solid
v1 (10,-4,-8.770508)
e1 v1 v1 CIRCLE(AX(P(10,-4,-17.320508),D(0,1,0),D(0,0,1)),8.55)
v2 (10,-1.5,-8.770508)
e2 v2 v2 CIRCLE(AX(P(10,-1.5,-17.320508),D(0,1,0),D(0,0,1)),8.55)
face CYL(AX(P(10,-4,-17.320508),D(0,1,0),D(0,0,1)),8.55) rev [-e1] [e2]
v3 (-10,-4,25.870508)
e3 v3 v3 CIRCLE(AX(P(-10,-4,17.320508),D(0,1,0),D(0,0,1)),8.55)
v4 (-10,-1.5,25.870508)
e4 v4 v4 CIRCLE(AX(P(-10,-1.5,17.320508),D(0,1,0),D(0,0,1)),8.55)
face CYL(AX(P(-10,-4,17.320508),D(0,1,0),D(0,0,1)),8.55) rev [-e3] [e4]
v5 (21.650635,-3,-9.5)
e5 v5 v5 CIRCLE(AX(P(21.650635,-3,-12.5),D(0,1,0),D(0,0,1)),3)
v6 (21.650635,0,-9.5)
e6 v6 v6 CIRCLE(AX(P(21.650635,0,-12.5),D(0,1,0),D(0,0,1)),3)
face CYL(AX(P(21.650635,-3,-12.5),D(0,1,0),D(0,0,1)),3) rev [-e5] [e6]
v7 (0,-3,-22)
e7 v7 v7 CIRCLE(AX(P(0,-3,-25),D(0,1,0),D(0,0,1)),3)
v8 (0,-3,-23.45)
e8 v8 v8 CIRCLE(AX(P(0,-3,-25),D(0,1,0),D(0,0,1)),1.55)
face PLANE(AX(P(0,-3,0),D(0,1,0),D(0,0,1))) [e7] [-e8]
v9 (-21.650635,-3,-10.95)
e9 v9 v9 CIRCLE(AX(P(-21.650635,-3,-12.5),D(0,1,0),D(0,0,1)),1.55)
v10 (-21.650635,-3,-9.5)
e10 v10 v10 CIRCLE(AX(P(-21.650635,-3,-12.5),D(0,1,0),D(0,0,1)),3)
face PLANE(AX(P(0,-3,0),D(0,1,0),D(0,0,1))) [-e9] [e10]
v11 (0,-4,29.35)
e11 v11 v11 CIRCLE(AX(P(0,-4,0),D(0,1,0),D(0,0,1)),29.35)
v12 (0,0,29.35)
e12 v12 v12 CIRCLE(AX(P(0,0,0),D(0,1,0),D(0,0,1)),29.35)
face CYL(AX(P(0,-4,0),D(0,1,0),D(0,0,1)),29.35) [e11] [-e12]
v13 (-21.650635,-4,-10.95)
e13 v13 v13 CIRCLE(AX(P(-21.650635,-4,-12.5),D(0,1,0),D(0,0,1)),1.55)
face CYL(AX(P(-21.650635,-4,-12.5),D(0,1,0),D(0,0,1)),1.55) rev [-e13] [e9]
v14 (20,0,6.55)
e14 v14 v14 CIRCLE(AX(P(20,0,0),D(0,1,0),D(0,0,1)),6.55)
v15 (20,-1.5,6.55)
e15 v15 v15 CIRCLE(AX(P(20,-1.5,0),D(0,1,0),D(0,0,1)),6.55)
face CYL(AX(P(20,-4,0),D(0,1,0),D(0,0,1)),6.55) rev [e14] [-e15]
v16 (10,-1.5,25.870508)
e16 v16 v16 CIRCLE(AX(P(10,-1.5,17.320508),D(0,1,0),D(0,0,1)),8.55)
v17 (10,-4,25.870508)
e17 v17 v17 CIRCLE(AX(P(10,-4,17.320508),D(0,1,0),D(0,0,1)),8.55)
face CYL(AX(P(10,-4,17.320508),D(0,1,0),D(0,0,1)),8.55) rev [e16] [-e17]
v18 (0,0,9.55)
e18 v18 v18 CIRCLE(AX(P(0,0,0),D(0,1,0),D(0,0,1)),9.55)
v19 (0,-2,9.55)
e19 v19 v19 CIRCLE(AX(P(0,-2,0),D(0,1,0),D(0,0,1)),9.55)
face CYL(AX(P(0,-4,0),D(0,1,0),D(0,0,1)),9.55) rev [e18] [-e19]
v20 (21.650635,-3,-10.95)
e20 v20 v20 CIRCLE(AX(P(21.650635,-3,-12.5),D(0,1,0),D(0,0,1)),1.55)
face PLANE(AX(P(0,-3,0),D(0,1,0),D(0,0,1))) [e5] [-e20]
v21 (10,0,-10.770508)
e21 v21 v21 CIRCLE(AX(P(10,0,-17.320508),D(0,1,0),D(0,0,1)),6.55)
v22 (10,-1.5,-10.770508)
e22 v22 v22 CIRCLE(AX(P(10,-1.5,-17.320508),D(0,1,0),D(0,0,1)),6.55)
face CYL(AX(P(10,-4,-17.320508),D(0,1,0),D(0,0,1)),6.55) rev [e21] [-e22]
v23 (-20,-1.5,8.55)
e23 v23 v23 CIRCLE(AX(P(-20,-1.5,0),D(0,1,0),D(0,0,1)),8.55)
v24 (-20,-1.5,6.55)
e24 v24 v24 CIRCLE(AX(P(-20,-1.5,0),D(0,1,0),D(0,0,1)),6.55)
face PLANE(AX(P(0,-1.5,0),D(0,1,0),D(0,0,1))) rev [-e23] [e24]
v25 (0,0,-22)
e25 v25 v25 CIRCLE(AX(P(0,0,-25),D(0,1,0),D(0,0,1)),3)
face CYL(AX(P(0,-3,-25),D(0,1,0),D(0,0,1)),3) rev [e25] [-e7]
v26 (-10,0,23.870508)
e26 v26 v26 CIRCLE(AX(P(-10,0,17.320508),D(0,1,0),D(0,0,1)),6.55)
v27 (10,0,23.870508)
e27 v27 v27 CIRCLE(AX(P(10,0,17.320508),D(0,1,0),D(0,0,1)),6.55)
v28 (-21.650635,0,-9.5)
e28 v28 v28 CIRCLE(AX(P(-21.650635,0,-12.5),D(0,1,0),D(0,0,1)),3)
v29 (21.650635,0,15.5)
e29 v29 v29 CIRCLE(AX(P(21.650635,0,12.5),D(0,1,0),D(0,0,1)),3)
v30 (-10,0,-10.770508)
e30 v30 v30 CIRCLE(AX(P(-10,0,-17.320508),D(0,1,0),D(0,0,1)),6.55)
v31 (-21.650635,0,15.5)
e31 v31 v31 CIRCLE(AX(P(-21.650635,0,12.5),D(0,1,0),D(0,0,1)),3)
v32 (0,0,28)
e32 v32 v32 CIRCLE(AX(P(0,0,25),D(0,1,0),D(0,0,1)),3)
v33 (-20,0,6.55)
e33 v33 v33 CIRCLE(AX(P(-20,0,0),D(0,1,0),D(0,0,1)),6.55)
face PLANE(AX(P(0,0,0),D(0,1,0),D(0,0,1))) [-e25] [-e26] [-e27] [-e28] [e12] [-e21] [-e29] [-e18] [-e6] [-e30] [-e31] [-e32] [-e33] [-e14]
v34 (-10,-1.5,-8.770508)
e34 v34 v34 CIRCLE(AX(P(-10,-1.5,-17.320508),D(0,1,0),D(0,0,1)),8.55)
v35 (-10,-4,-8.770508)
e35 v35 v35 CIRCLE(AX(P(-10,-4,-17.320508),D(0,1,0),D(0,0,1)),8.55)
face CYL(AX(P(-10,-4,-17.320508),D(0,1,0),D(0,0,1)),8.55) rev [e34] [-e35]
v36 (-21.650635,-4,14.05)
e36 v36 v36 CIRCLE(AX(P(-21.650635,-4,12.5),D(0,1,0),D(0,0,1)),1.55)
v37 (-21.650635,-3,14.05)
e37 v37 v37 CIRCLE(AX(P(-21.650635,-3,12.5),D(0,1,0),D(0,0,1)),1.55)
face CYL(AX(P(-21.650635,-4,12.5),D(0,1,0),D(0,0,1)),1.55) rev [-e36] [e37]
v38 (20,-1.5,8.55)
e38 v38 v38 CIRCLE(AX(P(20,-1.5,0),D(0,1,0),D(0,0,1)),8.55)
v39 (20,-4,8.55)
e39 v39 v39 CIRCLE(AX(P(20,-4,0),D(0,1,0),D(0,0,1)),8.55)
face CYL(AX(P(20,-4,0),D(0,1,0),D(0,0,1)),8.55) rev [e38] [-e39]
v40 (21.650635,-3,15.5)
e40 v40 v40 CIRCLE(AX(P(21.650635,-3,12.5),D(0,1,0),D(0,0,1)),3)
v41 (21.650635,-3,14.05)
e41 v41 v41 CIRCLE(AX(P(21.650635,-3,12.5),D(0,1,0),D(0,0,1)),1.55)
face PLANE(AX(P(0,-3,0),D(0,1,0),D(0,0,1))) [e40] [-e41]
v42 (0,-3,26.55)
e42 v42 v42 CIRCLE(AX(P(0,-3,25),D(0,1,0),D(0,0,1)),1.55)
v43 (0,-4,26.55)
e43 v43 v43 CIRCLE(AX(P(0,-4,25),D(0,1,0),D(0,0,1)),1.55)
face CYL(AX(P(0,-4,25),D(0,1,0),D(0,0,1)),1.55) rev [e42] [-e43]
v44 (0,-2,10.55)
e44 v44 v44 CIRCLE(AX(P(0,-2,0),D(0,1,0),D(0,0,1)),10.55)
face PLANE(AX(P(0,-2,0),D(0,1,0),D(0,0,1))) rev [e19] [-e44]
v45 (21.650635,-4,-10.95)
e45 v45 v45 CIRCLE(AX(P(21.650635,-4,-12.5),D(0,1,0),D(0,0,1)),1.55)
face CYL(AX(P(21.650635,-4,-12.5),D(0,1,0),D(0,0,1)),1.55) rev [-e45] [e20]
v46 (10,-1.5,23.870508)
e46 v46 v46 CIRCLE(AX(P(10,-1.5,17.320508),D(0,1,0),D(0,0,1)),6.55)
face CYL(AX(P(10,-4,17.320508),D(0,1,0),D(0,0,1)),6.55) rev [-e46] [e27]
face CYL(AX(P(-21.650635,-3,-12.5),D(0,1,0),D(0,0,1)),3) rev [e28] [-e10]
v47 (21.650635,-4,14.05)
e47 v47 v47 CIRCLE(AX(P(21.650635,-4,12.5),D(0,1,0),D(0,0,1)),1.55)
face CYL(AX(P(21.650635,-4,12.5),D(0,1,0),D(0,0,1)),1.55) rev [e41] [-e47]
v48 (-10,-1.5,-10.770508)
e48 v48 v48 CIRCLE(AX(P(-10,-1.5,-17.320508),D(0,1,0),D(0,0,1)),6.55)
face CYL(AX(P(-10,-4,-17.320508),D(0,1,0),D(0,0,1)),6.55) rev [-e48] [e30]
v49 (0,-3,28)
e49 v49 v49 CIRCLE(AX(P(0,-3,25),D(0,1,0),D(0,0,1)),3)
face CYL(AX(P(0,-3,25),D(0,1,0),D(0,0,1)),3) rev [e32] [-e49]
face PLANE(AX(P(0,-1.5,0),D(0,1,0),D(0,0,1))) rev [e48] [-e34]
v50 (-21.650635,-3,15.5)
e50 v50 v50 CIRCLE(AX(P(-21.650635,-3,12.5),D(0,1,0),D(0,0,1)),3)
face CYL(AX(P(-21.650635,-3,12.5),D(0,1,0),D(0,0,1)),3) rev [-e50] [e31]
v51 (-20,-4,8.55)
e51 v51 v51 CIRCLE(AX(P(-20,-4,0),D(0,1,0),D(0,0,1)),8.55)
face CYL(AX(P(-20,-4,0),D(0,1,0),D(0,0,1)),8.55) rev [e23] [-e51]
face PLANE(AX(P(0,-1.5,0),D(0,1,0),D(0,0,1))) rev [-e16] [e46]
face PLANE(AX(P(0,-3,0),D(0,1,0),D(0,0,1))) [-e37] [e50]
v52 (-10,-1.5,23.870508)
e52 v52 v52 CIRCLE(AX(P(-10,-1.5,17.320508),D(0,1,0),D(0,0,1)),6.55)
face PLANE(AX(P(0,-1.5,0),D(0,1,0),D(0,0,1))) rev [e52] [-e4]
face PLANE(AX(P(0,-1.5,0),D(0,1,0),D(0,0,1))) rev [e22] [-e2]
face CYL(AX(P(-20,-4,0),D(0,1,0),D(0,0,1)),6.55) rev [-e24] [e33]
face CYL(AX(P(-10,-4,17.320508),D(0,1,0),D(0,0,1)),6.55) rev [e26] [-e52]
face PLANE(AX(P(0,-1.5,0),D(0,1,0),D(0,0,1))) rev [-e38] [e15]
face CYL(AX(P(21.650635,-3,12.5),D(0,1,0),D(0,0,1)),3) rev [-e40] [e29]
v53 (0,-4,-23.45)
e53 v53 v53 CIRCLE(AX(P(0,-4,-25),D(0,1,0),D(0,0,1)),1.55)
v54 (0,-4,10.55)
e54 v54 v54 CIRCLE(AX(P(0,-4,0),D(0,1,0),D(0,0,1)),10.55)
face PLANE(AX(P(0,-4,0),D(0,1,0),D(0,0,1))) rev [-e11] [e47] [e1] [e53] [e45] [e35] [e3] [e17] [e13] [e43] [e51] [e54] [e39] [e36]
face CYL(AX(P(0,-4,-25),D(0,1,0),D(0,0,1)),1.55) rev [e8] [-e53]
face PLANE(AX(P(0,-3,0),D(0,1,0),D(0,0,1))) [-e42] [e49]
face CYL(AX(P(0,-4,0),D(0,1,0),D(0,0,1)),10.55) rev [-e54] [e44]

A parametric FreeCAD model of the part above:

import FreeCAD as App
import Part
import Sketcher
from FreeCAD import Vector

doc = App.newDocument("Part")
body = doc.addObject("PartDesign::Body", "Body")

sketch1 = body.newObject("Sketcher::SketchObject", "Sketch")
sketch1.AttachmentSupport = (doc.getObject("XZ_Plane"), [""])
sketch1.MapMode = "FlatFace"
sketch1.addGeometry(Part.Circle(Vector(0, 0, 0), Vector(0, 0, 1), 29.35), False)
sketch1.addConstraint(Sketcher.Constraint("Coincident", 0, 3, -1, 1))
sketch1.addConstraint(Sketcher.Constraint("Diameter", 0, 58.7))
pad1 = body.newObject("PartDesign::Pad", "Pad")
pad1.Profile = sketch1
pad1.Length = 4

sketch2 = body.newObject("Sketcher::SketchObject", "Sketch001")
sketch2.AttachmentSupport = (doc.getObject("XZ_Plane"), [""])
sketch2.MapMode = "FlatFace"
sketch2.addGeometry(Part.Circle(Vector(-20, 0, 0), Vector(0, 0, 1), 6.55), False)
sketch2.addGeometry(Part.Circle(Vector(-10, 17.320508, 0), Vector(0, 0, 1), 6.55), False)
sketch2.addGeometry(Part.Circle(Vector(10, 17.320508, 0), Vector(0, 0, 1), 6.55), False)
sketch2.addGeometry(Part.Circle(Vector(20, 0, 0), Vector(0, 0, 1), 6.55), False)
sketch2.addGeometry(Part.Circle(Vector(10, -17.320508, 0), Vector(0, 0, 1), 6.55), False)
sketch2.addGeometry(Part.Circle(Vector(-10, -17.320508, 0), Vector(0, 0, 1), 6.55), False)
sketch2.addGeometry(Part.Circle(Vector(-21.650635, 12.5, 0), Vector(0, 0, 1), 1.55), False)
sketch2.addGeometry(Part.Circle(Vector(0, 25, 0), Vector(0, 0, 1), 1.55), False)
sketch2.addGeometry(Part.Circle(Vector(21.650635, 12.5, 0), Vector(0, 0, 1), 1.55), False)
sketch2.addGeometry(Part.Circle(Vector(21.650635, -12.5, 0), Vector(0, 0, 1), 1.55), False)
sketch2.addGeometry(Part.Circle(Vector(0, -25, 0), Vector(0, 0, 1), 1.55), False)
sketch2.addGeometry(Part.Circle(Vector(-21.650635, -12.5, 0), Vector(0, 0, 1), 1.55), False)
sketch2.addGeometry(Part.Circle(Vector(0, 0, 0), Vector(0, 0, 1), 9.55), False)
sketch2.addConstraint(Sketcher.Constraint("Coincident", 12, 3, -1, 1))
sketch2.addConstraint(Sketcher.Constraint("Equal", 0, 1))
sketch2.addConstraint(Sketcher.Constraint("Equal", 1, 2))
sketch2.addConstraint(Sketcher.Constraint("Equal", 2, 3))
sketch2.addConstraint(Sketcher.Constraint("Equal", 3, 4))
sketch2.addConstraint(Sketcher.Constraint("Equal", 4, 5))
sketch2.addConstraint(Sketcher.Constraint("Equal", 6, 7))
sketch2.addConstraint(Sketcher.Constraint("Equal", 7, 8))
sketch2.addConstraint(Sketcher.Constraint("Equal", 8, 9))
sketch2.addConstraint(Sketcher.Constraint("Equal", 9, 10))
sketch2.addConstraint(Sketcher.Constraint("Equal", 10, 11))
sketch2.addConstraint(Sketcher.Constraint("Symmetric", 0, 3, 3, 3, -1, 1))
sketch2.addConstraint(Sketcher.Constraint("Symmetric", 1, 3, 4, 3, -1, 1))
sketch2.addConstraint(Sketcher.Constraint("Symmetric", 2, 3, 5, 3, -1, 1))
sketch2.addConstraint(Sketcher.Constraint("Symmetric", 6, 3, 9, 3, -1, 1))
sketch2.addConstraint(Sketcher.Constraint("Symmetric", 7, 3, 10, 3, -1, 1))
sketch2.addConstraint(Sketcher.Constraint("Symmetric", 8, 3, 11, 3, -1, 1))
sketch2.addConstraint(Sketcher.Constraint("Symmetric", 1, 3, 2, 3, -2))
sketch2.addConstraint(Sketcher.Constraint("Symmetric", 6, 3, 8, 3, -2))
sketch2.addConstraint(Sketcher.Constraint("PointOnObject", 0, 3, -1))
sketch2.addConstraint(Sketcher.Constraint("PointOnObject", 7, 3, -2))
sketch2.addConstraint(Sketcher.Constraint("Diameter", 0, 13.1))
sketch2.addConstraint(Sketcher.Constraint("Diameter", 6, 3.1))
sketch2.addConstraint(Sketcher.Constraint("Diameter", 12, 19.1))
sketch2.addConstraint(Sketcher.Constraint("DistanceX", 0, 3, -1, 1, 20.0))
sketch2.addConstraint(Sketcher.Constraint("DistanceX", 1, 3, -1, 1, 10.0))
sketch2.addConstraint(Sketcher.Constraint("DistanceY", -1, 1, 7, 3, 25.0))
sketch2.addConstraint(Sketcher.Constraint("DistanceY", 9, 3, 8, 3, 25.0))
sketch2.addConstraint(Sketcher.Constraint("DistanceY", -1, 1, 1, 3, 17.320508))
sketch2.addConstraint(Sketcher.Constraint("DistanceX", 6, 3, -1, 1, 21.650635))
pocket1 = body.newObject("PartDesign::Pocket", "Pocket")
pocket1.Profile = sketch2
pocket1.Type = "ThroughAll"
pocket1.Reversed = True

sketch3 = body.newObject("Sketcher::SketchObject", "Sketch002")
sketch3.AttachmentSupport = (doc.getObject("XZ_Plane"), [""])
sketch3.MapMode = "FlatFace"
sketch3.AttachmentOffset = App.Placement(Vector(0, 0, 1.5), App.Rotation())
sketch3.addGeometry(Part.Circle(Vector(-20, 0, 0), Vector(0, 0, 1), 8.55), False)
sketch3.addGeometry(Part.Circle(Vector(-20, 0, 0), Vector(0, 0, 1), 6.55), False)
sketch3.addGeometry(Part.Circle(Vector(-10, -17.320508, 0), Vector(0, 0, 1), 8.55), False)
sketch3.addGeometry(Part.Circle(Vector(-10, -17.320508, 0), Vector(0, 0, 1), 6.55), False)
sketch3.addGeometry(Part.Circle(Vector(10, -17.320508, 0), Vector(0, 0, 1), 8.55), False)
sketch3.addGeometry(Part.Circle(Vector(10, -17.320508, 0), Vector(0, 0, 1), 6.55), False)
sketch3.addGeometry(Part.Circle(Vector(20, 0, 0), Vector(0, 0, 1), 8.55), False)
sketch3.addGeometry(Part.Circle(Vector(20, 0, 0), Vector(0, 0, 1), 6.55), False)
sketch3.addGeometry(Part.Circle(Vector(10, 17.320508, 0), Vector(0, 0, 1), 8.55), False)
sketch3.addGeometry(Part.Circle(Vector(10, 17.320508, 0), Vector(0, 0, 1), 6.55), False)
sketch3.addGeometry(Part.Circle(Vector(-10, 17.320508, 0), Vector(0, 0, 1), 8.55), False)
sketch3.addGeometry(Part.Circle(Vector(-10, 17.320508, 0), Vector(0, 0, 1), 6.55), False)
sketch3.addConstraint(Sketcher.Constraint("Coincident", 1, 3, 0, 3))
sketch3.addConstraint(Sketcher.Constraint("Coincident", 3, 3, 2, 3))
sketch3.addConstraint(Sketcher.Constraint("Coincident", 5, 3, 4, 3))
sketch3.addConstraint(Sketcher.Constraint("Coincident", 7, 3, 6, 3))
sketch3.addConstraint(Sketcher.Constraint("Coincident", 9, 3, 8, 3))
sketch3.addConstraint(Sketcher.Constraint("Coincident", 11, 3, 10, 3))
sketch3.addConstraint(Sketcher.Constraint("Equal", 0, 2))
sketch3.addConstraint(Sketcher.Constraint("Equal", 1, 3))
sketch3.addConstraint(Sketcher.Constraint("Equal", 2, 4))
sketch3.addConstraint(Sketcher.Constraint("Equal", 3, 5))
sketch3.addConstraint(Sketcher.Constraint("Equal", 4, 6))
sketch3.addConstraint(Sketcher.Constraint("Equal", 5, 7))
sketch3.addConstraint(Sketcher.Constraint("Equal", 6, 8))
sketch3.addConstraint(Sketcher.Constraint("Equal", 7, 9))
sketch3.addConstraint(Sketcher.Constraint("Equal", 8, 10))
sketch3.addConstraint(Sketcher.Constraint("Equal", 9, 11))
sketch3.addConstraint(Sketcher.Constraint("Symmetric", 0, 3, 6, 3, -1, 1))
sketch3.addConstraint(Sketcher.Constraint("Symmetric", 2, 3, 8, 3, -1, 1))
sketch3.addConstraint(Sketcher.Constraint("Symmetric", 4, 3, 10, 3, -1, 1))
sketch3.addConstraint(Sketcher.Constraint("Symmetric", 2, 3, 4, 3, -2))
sketch3.addConstraint(Sketcher.Constraint("PointOnObject", 0, 3, -1))
sketch3.addConstraint(Sketcher.Constraint("Diameter", 0, 17.1))
sketch3.addConstraint(Sketcher.Constraint("Diameter", 1, 13.1))
sketch3.addConstraint(Sketcher.Constraint("DistanceX", 0, 3, -1, 1, 20.0))
sketch3.addConstraint(Sketcher.Constraint("DistanceX", 2, 3, -1, 1, 10.0))
sketch3.addConstraint(Sketcher.Constraint("DistanceY", 2, 3, -1, 1, 17.320508))
pocket2 = body.newObject("PartDesign::Pocket", "Pocket001")
pocket2.Profile = sketch3
pocket2.Length = 41.19946
pocket2.Reversed = True

sketch4 = body.newObject("Sketcher::SketchObject", "Sketch003")
sketch4.AttachmentSupport = (doc.getObject("XZ_Plane"), [""])
sketch4.MapMode = "FlatFace"
sketch4.AttachmentOffset = App.Placement(Vector(0, 0, 2), App.Rotation())
sketch4.addGeometry(Part.Circle(Vector(0, 0, 0), Vector(0, 0, 1), 10.55), False)
sketch4.addGeometry(Part.Circle(Vector(0, 0, 0), Vector(0, 0, 1), 9.55), False)
sketch4.addConstraint(Sketcher.Constraint("Coincident", 0, 3, -1, 1))
sketch4.addConstraint(Sketcher.Constraint("Coincident", 1, 3, -1, 1))
sketch4.addConstraint(Sketcher.Constraint("Diameter", 0, 21.1))
sketch4.addConstraint(Sketcher.Constraint("Diameter", 1, 19.1))
pocket3 = body.newObject("PartDesign::Pocket", "Pocket002")
pocket3.Profile = sketch4
pocket3.Type = "ThroughAll"
pocket3.Reversed = True

sketch5 = body.newObject("Sketcher::SketchObject", "Sketch004")
sketch5.AttachmentSupport = (doc.getObject("XZ_Plane"), [""])
sketch5.MapMode = "FlatFace"
sketch5.addGeometry(Part.Circle(Vector(-21.650635, -12.5, 0), Vector(0, 0, 1), 3), False)
sketch5.addGeometry(Part.Circle(Vector(-21.650635, -12.5, 0), Vector(0, 0, 1), 1.55), False)
sketch5.addGeometry(Part.Circle(Vector(0, -25, 0), Vector(0, 0, 1), 3), False)
sketch5.addGeometry(Part.Circle(Vector(0, -25, 0), Vector(0, 0, 1), 1.55), False)
sketch5.addGeometry(Part.Circle(Vector(21.650635, -12.5, 0), Vector(0, 0, 1), 3), False)
sketch5.addGeometry(Part.Circle(Vector(21.650635, -12.5, 0), Vector(0, 0, 1), 1.55), False)
sketch5.addGeometry(Part.Circle(Vector(21.650635, 12.5, 0), Vector(0, 0, 1), 3), False)
sketch5.addGeometry(Part.Circle(Vector(21.650635, 12.5, 0), Vector(0, 0, 1), 1.55), False)
sketch5.addGeometry(Part.Circle(Vector(0, 25, 0), Vector(0, 0, 1), 3), False)
sketch5.addGeometry(Part.Circle(Vector(0, 25, 0), Vector(0, 0, 1), 1.55), False)
sketch5.addGeometry(Part.Circle(Vector(-21.650635, 12.5, 0), Vector(0, 0, 1), 3), False)
sketch5.addGeometry(Part.Circle(Vector(-21.650635, 12.5, 0), Vector(0, 0, 1), 1.55), False)
sketch5.addConstraint(Sketcher.Constraint("Coincident", 1, 3, 0, 3))
sketch5.addConstraint(Sketcher.Constraint("Coincident", 3, 3, 2, 3))
sketch5.addConstraint(Sketcher.Constraint("Coincident", 5, 3, 4, 3))
sketch5.addConstraint(Sketcher.Constraint("Coincident", 7, 3, 6, 3))
sketch5.addConstraint(Sketcher.Constraint("Coincident", 9, 3, 8, 3))
sketch5.addConstraint(Sketcher.Constraint("Coincident", 11, 3, 10, 3))
sketch5.addConstraint(Sketcher.Constraint("Equal", 0, 2))
sketch5.addConstraint(Sketcher.Constraint("Equal", 1, 3))
sketch5.addConstraint(Sketcher.Constraint("Equal", 2, 4))
sketch5.addConstraint(Sketcher.Constraint("Equal", 3, 5))
sketch5.addConstraint(Sketcher.Constraint("Equal", 4, 6))
sketch5.addConstraint(Sketcher.Constraint("Equal", 5, 7))
sketch5.addConstraint(Sketcher.Constraint("Equal", 6, 8))
sketch5.addConstraint(Sketcher.Constraint("Equal", 7, 9))
sketch5.addConstraint(Sketcher.Constraint("Equal", 8, 10))
sketch5.addConstraint(Sketcher.Constraint("Equal", 9, 11))
sketch5.addConstraint(Sketcher.Constraint("Symmetric", 0, 3, 6, 3, -1, 1))
sketch5.addConstraint(Sketcher.Constraint("Symmetric", 2, 3, 8, 3, -1, 1))
sketch5.addConstraint(Sketcher.Constraint("Symmetric", 4, 3, 10, 3, -1, 1))
sketch5.addConstraint(Sketcher.Constraint("Symmetric", 0, 3, 4, 3, -2))
sketch5.addConstraint(Sketcher.Constraint("PointOnObject", 2, 3, -2))
sketch5.addConstraint(Sketcher.Constraint("Diameter", 0, 6.0))
sketch5.addConstraint(Sketcher.Constraint("Diameter", 1, 3.1))
sketch5.addConstraint(Sketcher.Constraint("DistanceY", 2, 3, -1, 1, 25.0))
sketch5.addConstraint(Sketcher.Constraint("DistanceY", 4, 3, 6, 3, 25.0))
sketch5.addConstraint(Sketcher.Constraint("DistanceX", 0, 3, 4, 3, 43.30127))
pocket4 = body.newObject("PartDesign::Pocket", "Pocket003")
pocket4.Profile = sketch5
pocket4.Length = 3
pocket4.Reversed = True

doc.recompute()
